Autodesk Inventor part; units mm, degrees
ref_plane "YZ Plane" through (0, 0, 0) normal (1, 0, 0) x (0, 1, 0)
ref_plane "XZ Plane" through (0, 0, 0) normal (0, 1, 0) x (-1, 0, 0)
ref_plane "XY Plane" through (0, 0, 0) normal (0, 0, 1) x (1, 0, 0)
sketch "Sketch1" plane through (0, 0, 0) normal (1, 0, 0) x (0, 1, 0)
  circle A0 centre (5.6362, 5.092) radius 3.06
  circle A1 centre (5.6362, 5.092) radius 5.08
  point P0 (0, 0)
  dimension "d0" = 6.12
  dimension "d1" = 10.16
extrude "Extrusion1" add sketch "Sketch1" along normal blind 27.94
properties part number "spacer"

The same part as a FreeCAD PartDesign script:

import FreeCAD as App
import Part
import Sketcher

V = App.Vector
Q = App.Units.Quantity

doc = App.newDocument("Part")
body = doc.addObject("PartDesign::Body", "Body")

# Sketch on YZ plane
sketch1 = body.newObject("Sketcher::SketchObject", "Sketch")
sketch1.AttachmentSupport = (doc.getObject("YZ_Plane"), [""])
sketch1.MapMode = "FlatFace"
sketch1.addGeometry([
    Part.Circle(V(5.6, 5.1, 0), V(0, 0, 1), 5.1),
    Part.Circle(V(5.6, 5.1, 0), V(0, 0, 1), 3.1),
], False)
sketch1.addConstraint([
    Sketcher.Constraint("Coincident", 1, 3, 0, 3),
    Sketcher.Constraint("Diameter", 0, Q("0.4 in")),
    Sketcher.Constraint("Diameter", 1, Q("6.12 mm")),
    Sketcher.Constraint("DistanceX", -1, 1, 0, 3, Q("0.2219 in")),
    Sketcher.Constraint("DistanceY", -1, 1, 0, 3, Q("5.092 mm")),
])
pad1 = body.newObject("PartDesign::Pad", "Pad")
pad1.Profile = sketch1
pad1.Length = Q("1.1 in")

doc.recompute()
